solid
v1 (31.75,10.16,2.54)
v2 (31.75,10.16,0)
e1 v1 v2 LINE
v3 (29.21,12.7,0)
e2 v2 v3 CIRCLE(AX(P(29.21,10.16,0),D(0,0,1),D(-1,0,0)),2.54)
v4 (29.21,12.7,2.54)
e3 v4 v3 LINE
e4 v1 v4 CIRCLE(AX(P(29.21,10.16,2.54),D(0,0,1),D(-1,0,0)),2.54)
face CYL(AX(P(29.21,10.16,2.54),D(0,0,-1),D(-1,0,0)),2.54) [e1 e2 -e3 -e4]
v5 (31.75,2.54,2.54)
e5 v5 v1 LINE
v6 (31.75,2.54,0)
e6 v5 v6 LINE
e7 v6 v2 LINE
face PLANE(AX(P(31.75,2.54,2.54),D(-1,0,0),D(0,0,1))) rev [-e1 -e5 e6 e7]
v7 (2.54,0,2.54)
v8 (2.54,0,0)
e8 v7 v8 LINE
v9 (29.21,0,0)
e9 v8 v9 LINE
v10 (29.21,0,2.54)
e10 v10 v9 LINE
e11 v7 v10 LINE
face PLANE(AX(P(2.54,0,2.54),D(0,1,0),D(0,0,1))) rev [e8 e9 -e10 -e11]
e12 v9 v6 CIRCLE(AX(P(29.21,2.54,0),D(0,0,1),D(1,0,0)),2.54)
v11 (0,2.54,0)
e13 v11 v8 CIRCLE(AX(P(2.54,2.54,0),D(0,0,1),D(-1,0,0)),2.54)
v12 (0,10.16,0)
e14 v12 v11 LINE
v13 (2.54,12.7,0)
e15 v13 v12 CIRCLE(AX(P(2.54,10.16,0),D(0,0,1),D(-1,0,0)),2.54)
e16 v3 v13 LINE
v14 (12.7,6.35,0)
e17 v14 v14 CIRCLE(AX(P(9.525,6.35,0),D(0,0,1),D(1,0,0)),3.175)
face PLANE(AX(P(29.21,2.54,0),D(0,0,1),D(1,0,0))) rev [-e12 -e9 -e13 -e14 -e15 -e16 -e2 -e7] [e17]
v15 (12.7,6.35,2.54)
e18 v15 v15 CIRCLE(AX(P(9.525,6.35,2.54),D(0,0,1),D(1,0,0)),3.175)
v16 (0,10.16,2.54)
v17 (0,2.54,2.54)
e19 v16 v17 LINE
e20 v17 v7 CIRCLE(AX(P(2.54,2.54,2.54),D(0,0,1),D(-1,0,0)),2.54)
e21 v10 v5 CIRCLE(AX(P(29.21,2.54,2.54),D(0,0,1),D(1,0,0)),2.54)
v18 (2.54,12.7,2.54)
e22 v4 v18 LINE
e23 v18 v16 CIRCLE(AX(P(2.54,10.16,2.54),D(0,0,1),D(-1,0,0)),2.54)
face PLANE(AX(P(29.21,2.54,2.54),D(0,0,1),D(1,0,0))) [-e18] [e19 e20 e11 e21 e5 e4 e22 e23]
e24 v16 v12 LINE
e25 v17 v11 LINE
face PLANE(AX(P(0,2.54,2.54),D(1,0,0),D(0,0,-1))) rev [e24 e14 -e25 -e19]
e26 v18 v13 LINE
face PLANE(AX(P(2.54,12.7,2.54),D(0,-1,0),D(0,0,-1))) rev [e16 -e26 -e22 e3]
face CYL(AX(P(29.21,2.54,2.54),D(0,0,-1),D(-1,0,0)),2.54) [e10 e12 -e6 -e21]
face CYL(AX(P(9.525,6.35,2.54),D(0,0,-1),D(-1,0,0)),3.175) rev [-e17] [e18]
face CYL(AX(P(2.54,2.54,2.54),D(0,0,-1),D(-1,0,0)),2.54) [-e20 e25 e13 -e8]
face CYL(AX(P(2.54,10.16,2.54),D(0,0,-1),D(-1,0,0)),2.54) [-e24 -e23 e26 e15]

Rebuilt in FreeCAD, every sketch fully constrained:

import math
import FreeCAD as App
import Part
import Sketcher
from FreeCAD import Vector
Q = App.Units.Quantity

doc = App.newDocument("Part")
params = doc.addObject("Spreadsheet::Sheet", "Params")
for row, (alias, value) in enumerate([
    ("sketch1_radius", "0.1 in"),
    ("sketch1_diameter", "0.25 in"),
    ("sketch1_height", "0.3 in"),
    ("sketch1_width", "1.05 in"),
    ("pad1_length", "0.1 in"),
], start=1):
    params.set(f"A{row}", alias)
    params.set(f"B{row}", "=" + value)
    params.setAlias(f"B{row}", alias)

body = doc.addObject("PartDesign::Body", "Body")

# Sketch on XY plane
sketch1 = body.newObject("Sketcher::SketchObject", "Sketch")
sketch1.AttachmentSupport = (doc.getObject("XY_Plane"), [""])
sketch1.MapMode = "FlatFace"
sketch1.addGeometry([
    Part.LineSegment(Vector(2.54, 0, 0), Vector(29.21, 0, 0)),  # 0
    Part.ArcOfCircle(Part.Circle(Vector(29.21, 2.54, 0), Vector(0, 0, 1), 2.54), math.radians(-90), math.radians(0)),  # 1
    Part.LineSegment(Vector(31.75, 2.54, 0), Vector(31.75, 10.16, 0)),  # 2
    Part.ArcOfCircle(Part.Circle(Vector(29.21, 10.16, 0), Vector(0, 0, 1), 2.54), math.radians(0), math.radians(90)),  # 3
    Part.LineSegment(Vector(29.21, 12.7, 0), Vector(2.54, 12.7, 0)),  # 4
    Part.ArcOfCircle(Part.Circle(Vector(2.54, 10.16, 0), Vector(0, 0, 1), 2.54), math.radians(90), math.radians(180)),  # 5
    Part.LineSegment(Vector(0, 10.16, 0), Vector(0, 2.54, 0)),  # 6
    Part.ArcOfCircle(Part.Circle(Vector(2.54, 2.54, 0), Vector(0, 0, 1), 2.54), math.radians(-180), math.radians(-90)),  # 7
    Part.Circle(Vector(9.525, 6.35, 0), Vector(0, 0, 1), 3.175),  # 8
], False)
sketch1.addConstraint([
    Sketcher.Constraint("Tangent", 0, 2, 1, 1),
    Sketcher.Constraint("Tangent", 1, 2, 2, 1),
    Sketcher.Constraint("Tangent", 2, 2, 3, 1),
    Sketcher.Constraint("Tangent", 3, 2, 4, 1),
    Sketcher.Constraint("Tangent", 4, 2, 5, 1),
    Sketcher.Constraint("Tangent", 5, 2, 6, 1),
    Sketcher.Constraint("Tangent", 6, 2, 7, 1),
    Sketcher.Constraint("Tangent", 7, 2, 0, 1),
    Sketcher.Constraint("Horizontal", 0),
    Sketcher.Constraint("Vertical", 2),
    Sketcher.Constraint("Horizontal", 4),
    Sketcher.Constraint("Vertical", 6),
    Sketcher.Constraint("Equal", 1, 3),
    Sketcher.Constraint("Equal", 3, 5),
    Sketcher.Constraint("Equal", 5, 7),
    Sketcher.Constraint("PointOnObject", 0, 2, -1),
    Sketcher.Constraint("PointOnObject", 5, 2, -2),
    Sketcher.Constraint("Radius", 1, Q("0.1 in")),
    Sketcher.Constraint("Diameter", 8, Q("0.25 in")),
    Sketcher.Constraint("DistanceY", 2, 1, 2, 2, Q("0.3 in")),
    Sketcher.Constraint("DistanceX", 0, 1, 0, 2, Q("1.05 in")),
    Sketcher.Constraint("DistanceY", -1, 1, 8, 3, Q("0.25 in")),
    Sketcher.Constraint("DistanceX", -1, 1, 8, 3, Q("0.375 in")),
])
sketch1.setExpression("Constraints[17]", "Params.sketch1_radius")
sketch1.setExpression("Constraints[18]", "Params.sketch1_diameter")
sketch1.setExpression("Constraints[19]", "Params.sketch1_height")
sketch1.setExpression("Constraints[20]", "Params.sketch1_width")
pad1 = body.newObject("PartDesign::Pad", "Pad")
pad1.Profile = sketch1
pad1.setExpression("Length", "Params.pad1_length")

doc.recompute()
